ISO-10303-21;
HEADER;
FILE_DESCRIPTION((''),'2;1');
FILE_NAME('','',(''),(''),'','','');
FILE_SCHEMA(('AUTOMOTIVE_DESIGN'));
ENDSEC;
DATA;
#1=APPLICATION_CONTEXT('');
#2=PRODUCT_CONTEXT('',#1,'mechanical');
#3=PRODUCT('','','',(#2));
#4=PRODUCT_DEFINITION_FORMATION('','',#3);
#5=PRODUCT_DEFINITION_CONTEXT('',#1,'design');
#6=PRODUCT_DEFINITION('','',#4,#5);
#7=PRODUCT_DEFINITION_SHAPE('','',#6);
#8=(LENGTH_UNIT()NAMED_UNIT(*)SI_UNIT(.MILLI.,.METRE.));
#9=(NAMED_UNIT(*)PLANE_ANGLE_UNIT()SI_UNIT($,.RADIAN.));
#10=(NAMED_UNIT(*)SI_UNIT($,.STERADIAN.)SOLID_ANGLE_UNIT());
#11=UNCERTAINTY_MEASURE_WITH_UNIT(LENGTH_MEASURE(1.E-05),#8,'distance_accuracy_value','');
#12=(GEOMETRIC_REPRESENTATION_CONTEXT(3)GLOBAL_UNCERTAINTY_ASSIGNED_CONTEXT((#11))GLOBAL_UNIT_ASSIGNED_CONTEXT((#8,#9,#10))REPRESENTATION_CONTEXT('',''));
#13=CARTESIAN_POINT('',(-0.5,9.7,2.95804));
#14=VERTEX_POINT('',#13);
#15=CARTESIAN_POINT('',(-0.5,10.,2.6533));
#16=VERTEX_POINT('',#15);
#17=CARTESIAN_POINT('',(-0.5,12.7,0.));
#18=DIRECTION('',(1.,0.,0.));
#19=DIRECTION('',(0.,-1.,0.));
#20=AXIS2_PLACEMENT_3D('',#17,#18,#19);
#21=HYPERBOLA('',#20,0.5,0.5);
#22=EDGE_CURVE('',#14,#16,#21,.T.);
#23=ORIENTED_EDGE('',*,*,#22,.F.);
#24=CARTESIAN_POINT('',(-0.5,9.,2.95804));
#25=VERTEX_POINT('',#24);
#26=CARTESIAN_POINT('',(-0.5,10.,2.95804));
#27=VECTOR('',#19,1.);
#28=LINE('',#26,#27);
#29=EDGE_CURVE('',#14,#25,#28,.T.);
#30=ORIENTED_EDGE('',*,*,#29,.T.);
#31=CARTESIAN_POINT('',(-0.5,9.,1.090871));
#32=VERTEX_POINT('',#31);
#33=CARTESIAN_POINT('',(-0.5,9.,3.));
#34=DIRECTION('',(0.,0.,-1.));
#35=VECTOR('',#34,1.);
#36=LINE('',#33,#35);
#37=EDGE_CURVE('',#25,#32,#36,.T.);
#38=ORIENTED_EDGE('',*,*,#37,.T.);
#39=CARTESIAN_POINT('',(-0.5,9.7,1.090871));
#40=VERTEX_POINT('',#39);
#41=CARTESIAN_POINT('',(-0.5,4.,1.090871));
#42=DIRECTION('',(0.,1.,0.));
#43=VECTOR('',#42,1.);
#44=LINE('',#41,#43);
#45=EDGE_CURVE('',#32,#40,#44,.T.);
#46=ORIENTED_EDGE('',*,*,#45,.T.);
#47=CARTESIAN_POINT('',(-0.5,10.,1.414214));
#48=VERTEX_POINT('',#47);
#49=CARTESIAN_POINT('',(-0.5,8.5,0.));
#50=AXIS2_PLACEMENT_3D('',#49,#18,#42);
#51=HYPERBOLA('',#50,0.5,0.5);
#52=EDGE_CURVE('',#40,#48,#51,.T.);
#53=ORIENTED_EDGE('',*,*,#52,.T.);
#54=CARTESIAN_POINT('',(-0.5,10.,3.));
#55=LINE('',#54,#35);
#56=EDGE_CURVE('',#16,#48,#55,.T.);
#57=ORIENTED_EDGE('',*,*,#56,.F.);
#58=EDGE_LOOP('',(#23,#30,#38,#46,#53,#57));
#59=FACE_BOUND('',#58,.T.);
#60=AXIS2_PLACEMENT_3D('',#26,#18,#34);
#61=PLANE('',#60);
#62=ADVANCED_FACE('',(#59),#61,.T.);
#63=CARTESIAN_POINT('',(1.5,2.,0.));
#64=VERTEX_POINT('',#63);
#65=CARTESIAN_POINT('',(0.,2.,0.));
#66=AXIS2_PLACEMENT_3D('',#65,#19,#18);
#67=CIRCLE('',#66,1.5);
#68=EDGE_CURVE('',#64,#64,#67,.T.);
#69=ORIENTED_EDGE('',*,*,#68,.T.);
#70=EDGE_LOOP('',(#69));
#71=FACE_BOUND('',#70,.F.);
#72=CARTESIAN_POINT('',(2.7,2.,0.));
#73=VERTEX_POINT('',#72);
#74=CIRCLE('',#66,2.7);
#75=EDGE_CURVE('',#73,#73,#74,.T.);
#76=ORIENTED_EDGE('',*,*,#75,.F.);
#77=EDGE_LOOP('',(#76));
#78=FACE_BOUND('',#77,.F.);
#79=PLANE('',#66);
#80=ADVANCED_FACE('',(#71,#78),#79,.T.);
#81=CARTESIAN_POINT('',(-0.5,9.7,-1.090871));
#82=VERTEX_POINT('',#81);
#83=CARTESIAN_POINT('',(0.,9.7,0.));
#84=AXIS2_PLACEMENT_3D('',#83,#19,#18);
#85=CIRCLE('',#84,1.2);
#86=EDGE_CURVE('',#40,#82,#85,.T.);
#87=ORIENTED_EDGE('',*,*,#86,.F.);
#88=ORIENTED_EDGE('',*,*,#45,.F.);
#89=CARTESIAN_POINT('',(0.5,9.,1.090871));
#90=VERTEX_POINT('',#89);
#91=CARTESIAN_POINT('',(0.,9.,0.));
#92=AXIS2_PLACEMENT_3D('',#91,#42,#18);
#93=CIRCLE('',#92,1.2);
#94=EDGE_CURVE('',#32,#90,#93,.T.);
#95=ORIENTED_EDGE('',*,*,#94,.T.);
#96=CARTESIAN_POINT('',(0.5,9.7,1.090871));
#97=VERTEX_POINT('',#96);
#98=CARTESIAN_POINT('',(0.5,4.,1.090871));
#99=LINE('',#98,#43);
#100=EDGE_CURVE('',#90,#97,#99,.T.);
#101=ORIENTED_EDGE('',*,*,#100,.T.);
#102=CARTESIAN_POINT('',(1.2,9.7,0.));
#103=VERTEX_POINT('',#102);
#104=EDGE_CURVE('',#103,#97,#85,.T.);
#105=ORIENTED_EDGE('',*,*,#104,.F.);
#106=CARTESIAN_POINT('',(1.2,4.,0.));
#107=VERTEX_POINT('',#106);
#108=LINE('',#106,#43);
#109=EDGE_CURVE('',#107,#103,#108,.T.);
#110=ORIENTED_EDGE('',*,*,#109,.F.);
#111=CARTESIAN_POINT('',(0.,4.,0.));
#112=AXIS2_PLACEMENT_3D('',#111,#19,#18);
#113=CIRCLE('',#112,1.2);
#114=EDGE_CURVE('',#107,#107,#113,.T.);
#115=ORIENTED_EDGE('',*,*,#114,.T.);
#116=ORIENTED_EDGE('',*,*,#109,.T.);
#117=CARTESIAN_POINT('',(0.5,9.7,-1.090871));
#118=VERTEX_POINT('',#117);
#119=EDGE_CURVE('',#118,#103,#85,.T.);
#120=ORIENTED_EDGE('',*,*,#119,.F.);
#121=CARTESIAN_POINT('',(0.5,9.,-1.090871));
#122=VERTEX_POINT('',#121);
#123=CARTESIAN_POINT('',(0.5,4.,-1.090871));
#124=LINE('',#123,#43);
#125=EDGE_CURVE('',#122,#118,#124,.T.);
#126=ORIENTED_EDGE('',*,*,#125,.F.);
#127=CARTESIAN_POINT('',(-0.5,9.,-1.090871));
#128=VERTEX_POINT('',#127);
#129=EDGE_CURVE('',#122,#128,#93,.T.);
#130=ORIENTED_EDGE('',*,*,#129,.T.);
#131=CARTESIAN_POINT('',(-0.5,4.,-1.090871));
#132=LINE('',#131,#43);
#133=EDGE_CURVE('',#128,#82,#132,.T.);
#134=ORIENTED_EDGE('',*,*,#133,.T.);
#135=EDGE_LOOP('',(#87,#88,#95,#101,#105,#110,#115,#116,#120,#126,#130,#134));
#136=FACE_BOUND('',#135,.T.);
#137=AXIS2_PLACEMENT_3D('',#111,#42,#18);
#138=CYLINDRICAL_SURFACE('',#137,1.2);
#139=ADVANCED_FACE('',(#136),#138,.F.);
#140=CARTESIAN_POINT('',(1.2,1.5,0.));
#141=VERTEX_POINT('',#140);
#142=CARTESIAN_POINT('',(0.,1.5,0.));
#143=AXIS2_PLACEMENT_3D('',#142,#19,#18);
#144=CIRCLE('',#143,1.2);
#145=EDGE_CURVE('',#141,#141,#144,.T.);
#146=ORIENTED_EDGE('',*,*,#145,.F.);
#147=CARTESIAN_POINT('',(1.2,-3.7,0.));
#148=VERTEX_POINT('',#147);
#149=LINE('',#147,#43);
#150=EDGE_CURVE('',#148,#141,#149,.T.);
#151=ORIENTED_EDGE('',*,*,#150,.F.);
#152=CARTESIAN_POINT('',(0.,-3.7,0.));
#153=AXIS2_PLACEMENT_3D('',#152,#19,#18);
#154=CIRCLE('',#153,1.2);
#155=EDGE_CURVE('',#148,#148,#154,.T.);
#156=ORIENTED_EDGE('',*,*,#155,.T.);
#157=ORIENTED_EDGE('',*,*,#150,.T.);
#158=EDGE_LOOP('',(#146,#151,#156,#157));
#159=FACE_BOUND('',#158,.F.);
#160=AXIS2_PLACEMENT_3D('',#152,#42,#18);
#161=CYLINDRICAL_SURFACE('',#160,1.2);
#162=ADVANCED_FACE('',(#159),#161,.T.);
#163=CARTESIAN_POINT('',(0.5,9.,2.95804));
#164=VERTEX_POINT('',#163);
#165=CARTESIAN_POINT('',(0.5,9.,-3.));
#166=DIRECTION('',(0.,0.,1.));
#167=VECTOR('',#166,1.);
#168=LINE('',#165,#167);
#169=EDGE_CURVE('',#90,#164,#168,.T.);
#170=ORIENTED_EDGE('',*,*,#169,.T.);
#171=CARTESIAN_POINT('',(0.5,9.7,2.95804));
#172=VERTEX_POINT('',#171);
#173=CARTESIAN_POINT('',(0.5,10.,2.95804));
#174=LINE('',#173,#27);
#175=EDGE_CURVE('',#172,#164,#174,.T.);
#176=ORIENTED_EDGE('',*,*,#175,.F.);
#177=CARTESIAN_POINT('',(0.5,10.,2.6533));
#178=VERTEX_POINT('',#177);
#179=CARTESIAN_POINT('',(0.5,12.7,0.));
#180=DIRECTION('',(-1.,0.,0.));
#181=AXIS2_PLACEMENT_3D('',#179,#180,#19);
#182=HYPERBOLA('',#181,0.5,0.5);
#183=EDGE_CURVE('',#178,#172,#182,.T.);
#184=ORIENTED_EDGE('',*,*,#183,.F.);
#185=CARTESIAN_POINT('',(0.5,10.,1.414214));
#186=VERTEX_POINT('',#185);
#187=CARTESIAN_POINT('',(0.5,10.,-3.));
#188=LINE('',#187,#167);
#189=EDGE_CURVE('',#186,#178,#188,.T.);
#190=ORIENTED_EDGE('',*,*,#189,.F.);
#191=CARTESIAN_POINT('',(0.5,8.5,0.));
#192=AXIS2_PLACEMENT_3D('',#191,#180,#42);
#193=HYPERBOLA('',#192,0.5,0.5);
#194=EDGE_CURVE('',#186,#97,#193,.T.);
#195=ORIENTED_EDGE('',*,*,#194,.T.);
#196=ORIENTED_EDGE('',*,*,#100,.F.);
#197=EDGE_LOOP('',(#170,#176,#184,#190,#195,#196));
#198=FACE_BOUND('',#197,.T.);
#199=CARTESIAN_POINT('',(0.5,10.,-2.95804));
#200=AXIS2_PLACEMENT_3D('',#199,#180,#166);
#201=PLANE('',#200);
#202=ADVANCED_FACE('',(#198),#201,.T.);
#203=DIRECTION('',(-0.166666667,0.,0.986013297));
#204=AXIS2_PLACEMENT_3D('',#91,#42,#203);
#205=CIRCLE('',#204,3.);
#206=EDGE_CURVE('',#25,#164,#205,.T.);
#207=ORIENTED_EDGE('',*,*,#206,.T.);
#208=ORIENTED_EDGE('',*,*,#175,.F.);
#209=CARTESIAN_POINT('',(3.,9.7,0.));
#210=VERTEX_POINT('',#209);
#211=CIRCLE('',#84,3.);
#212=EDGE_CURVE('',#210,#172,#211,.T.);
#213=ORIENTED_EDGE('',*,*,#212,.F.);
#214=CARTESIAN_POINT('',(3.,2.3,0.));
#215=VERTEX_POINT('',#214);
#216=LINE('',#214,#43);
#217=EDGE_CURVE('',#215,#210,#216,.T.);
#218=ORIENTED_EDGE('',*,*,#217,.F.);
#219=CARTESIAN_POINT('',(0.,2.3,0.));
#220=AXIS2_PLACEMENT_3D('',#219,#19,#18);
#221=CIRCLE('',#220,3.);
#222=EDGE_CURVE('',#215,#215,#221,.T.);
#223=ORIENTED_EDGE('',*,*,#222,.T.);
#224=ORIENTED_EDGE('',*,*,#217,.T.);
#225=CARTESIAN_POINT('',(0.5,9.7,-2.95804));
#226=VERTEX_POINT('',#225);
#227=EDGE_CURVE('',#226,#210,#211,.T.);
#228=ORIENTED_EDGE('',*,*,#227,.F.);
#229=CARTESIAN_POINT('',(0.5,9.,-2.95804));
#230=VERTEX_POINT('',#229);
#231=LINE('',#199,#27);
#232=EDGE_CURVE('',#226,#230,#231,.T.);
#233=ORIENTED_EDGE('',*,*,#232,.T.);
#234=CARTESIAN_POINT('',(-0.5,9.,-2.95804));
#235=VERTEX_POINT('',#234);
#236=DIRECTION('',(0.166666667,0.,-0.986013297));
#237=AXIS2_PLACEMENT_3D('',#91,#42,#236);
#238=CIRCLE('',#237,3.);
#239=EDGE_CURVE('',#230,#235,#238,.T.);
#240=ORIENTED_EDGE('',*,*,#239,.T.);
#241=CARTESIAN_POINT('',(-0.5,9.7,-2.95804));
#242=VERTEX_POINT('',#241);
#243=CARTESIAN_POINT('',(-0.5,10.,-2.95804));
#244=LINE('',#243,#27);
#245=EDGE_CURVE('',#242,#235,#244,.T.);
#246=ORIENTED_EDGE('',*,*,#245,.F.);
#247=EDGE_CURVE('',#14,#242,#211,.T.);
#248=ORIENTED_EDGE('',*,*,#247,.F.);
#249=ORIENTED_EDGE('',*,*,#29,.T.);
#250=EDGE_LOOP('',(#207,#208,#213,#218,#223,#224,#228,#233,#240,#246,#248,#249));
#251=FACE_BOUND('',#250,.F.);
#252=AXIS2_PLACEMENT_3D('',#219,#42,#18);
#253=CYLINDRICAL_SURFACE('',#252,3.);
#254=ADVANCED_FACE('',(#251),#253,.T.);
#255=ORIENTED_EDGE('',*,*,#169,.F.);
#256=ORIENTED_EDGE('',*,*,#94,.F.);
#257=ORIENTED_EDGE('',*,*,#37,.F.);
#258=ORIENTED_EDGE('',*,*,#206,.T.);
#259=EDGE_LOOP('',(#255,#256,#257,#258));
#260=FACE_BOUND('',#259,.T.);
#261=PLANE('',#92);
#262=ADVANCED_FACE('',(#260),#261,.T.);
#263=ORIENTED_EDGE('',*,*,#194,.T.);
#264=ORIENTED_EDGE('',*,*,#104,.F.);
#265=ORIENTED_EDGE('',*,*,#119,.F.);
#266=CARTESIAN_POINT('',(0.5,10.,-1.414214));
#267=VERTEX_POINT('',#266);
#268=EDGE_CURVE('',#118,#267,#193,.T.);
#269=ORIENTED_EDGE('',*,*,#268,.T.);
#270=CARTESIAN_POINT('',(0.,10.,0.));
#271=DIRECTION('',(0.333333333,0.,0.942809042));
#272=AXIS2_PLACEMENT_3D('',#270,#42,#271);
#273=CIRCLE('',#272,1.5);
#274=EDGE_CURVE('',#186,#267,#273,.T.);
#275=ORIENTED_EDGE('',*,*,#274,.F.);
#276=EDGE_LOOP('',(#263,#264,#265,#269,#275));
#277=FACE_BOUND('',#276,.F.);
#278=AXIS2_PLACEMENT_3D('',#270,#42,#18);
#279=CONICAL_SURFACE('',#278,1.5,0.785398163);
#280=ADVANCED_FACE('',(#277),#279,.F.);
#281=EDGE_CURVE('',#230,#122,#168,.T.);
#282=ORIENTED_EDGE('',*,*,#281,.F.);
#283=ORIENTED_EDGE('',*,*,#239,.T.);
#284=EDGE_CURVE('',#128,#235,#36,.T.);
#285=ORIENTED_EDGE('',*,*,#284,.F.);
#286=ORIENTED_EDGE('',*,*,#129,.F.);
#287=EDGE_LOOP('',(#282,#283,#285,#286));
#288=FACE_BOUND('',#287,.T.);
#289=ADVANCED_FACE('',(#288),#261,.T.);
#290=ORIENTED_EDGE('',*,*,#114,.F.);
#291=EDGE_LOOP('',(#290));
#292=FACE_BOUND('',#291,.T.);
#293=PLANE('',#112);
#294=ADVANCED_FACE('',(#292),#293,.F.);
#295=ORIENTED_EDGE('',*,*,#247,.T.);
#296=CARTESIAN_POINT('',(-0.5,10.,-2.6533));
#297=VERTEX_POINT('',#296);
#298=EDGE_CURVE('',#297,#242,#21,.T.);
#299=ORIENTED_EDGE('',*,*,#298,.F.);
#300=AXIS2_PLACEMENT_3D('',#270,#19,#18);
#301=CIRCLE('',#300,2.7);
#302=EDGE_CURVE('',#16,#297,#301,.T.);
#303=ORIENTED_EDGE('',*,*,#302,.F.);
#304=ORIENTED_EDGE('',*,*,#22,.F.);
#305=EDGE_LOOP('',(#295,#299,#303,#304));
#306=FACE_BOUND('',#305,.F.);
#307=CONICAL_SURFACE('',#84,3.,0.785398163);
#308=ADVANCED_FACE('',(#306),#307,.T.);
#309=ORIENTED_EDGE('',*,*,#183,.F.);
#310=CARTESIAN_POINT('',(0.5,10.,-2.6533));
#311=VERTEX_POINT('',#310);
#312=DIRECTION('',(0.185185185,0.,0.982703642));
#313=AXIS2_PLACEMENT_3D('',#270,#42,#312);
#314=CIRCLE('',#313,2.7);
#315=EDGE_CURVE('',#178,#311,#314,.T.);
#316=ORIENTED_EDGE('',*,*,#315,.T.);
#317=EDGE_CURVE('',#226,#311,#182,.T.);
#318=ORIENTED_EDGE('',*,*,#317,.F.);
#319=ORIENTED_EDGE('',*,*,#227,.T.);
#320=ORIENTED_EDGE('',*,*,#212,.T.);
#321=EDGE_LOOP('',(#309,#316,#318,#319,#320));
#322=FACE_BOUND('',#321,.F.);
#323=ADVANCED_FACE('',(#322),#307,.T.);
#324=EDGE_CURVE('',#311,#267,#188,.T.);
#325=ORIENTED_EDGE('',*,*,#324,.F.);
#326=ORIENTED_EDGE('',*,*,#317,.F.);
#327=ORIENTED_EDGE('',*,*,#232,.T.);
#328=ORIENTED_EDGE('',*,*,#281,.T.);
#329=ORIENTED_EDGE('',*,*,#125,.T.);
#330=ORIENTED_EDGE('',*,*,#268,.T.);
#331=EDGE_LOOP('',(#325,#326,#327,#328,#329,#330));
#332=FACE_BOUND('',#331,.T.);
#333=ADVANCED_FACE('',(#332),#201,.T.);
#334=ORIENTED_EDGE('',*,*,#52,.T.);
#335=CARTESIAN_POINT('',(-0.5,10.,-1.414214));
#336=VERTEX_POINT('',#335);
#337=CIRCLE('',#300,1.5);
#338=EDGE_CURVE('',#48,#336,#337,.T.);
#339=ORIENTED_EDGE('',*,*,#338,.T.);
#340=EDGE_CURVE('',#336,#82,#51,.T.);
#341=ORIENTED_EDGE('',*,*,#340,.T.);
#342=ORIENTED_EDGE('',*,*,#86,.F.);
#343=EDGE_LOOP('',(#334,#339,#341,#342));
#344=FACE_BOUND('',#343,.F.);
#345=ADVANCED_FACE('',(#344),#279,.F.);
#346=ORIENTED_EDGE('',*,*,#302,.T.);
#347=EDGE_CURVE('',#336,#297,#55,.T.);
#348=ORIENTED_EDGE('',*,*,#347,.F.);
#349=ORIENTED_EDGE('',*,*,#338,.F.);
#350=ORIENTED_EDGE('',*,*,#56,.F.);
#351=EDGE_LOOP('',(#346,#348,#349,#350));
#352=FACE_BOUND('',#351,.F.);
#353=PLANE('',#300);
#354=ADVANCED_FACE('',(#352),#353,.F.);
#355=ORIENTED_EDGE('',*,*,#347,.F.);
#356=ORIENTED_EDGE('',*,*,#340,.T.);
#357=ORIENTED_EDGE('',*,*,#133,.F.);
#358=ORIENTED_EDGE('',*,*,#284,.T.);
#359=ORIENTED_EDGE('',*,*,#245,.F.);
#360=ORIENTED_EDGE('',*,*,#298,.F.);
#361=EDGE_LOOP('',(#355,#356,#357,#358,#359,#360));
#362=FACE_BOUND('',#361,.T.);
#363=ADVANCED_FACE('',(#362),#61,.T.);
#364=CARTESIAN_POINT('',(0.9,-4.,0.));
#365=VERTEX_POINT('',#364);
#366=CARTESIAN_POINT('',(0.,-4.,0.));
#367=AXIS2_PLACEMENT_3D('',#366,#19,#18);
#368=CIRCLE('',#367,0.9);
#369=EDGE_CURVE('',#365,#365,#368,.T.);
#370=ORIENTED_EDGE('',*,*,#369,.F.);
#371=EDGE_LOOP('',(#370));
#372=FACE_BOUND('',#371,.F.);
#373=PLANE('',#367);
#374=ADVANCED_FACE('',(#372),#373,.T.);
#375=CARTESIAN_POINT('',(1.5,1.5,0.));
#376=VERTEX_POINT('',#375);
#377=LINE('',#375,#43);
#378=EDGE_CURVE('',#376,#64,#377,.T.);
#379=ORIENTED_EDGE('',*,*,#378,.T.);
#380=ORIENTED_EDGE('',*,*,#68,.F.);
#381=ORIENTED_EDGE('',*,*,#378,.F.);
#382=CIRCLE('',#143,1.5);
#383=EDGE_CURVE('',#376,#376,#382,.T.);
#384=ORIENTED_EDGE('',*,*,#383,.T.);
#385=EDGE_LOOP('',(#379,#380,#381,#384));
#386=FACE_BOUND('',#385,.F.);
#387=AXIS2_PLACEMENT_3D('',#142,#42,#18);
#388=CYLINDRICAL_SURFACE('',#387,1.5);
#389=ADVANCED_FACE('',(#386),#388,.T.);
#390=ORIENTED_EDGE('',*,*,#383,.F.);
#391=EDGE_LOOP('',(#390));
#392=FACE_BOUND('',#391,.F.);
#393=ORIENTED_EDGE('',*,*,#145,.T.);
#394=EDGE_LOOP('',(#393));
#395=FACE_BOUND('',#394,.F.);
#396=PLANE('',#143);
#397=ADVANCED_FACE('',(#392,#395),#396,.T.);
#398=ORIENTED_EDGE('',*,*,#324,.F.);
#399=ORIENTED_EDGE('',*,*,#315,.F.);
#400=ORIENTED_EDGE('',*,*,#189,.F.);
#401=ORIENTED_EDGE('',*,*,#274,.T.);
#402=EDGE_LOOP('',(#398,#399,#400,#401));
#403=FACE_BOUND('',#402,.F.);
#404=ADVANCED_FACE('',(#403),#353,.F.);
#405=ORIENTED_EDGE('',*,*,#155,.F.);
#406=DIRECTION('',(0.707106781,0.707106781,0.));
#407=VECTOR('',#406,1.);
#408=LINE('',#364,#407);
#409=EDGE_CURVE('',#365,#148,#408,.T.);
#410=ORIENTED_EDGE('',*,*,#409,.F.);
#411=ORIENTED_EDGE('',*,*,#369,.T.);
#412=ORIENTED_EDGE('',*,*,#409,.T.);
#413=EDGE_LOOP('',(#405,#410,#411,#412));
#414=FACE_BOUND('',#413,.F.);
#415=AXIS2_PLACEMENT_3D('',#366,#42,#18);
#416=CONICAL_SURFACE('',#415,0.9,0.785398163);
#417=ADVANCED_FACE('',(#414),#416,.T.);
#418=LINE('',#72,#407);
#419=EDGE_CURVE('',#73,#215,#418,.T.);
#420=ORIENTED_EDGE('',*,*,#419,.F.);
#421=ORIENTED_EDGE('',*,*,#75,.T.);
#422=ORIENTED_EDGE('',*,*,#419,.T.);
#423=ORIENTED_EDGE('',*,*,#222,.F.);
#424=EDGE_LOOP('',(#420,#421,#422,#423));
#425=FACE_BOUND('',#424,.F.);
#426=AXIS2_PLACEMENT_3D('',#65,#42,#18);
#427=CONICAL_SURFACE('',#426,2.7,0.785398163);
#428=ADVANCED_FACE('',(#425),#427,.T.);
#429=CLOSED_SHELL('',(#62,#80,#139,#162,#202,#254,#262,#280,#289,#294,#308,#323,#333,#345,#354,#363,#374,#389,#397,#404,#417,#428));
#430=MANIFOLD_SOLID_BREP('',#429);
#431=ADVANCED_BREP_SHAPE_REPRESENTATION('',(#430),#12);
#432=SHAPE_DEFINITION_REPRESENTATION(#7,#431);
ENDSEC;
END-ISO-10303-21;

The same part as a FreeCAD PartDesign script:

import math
import FreeCAD as App
import Part
import Sketcher
from FreeCAD import Vector
Q = App.Units.Quantity

doc = App.newDocument("Part")
params = doc.addObject("Spreadsheet::Sheet", "Params")
for row, (alias, value) in enumerate([
    ("sketch1_height", "8 mm"),
    ("sketch1_width", "0.3 mm"),
    ("sketch1_height2", "0.5 mm"),
    ("revolution_angle", "360 deg"),
    ("sketch2_radius", "3 mm"),
    ("pocket1_length", "1 mm"),
], start=1):
    params.set(f"A{row}", alias)
    params.set(f"B{row}", "=" + value)
    params.setAlias(f"B{row}", alias)

body = doc.addObject("PartDesign::Body", "Body")

sketch1 = body.newObject("Sketcher::SketchObject", "Sketch")
sketch1.AttachmentSupport = (doc.getObject("XY_Plane"), [""])
sketch1.MapMode = "FlatFace"
sketch1.addGeometry([
    Part.LineSegment(Vector(0, 4, 0), Vector(0, -4, 0)),
    Part.LineSegment(Vector(0, -4, 0), Vector(0.9, -4, 0)),
    Part.LineSegment(Vector(0.9, -4, 0), Vector(1.2, -3.7, 0)),
    Part.LineSegment(Vector(1.2, -3.7, 0), Vector(1.2, 1.5, 0)),
    Part.LineSegment(Vector(1.2, 1.5, 0), Vector(1.5, 1.5, 0)),
    Part.LineSegment(Vector(1.5, 1.5, 0), Vector(1.5, 2, 0)),
    Part.LineSegment(Vector(1.5, 2, 0), Vector(2.7, 2, 0)),
    Part.LineSegment(Vector(2.7, 2, 0), Vector(3, 2.3, 0)),
    Part.LineSegment(Vector(3, 2.3, 0), Vector(3, 9.7, 0)),
    Part.LineSegment(Vector(3, 9.7, 0), Vector(2.7, 10, 0)),
    Part.LineSegment(Vector(2.7, 10, 0), Vector(1.5, 10, 0)),
    Part.LineSegment(Vector(1.5, 10, 0), Vector(1.2, 9.7, 0)),
    Part.LineSegment(Vector(1.2, 9.7, 0), Vector(1.2, 4, 0)),
    Part.LineSegment(Vector(1.2, 4, 0), Vector(0, 4, 0)),
], False)
sketch1.addConstraint([
    Sketcher.Constraint("Coincident", 0, 2, 1, 1),
    Sketcher.Constraint("Coincident", 1, 2, 2, 1),
    Sketcher.Constraint("Coincident", 2, 2, 3, 1),
    Sketcher.Constraint("Coincident", 3, 2, 4, 1),
    Sketcher.Constraint("Coincident", 4, 2, 5, 1),
    Sketcher.Constraint("Coincident", 5, 2, 6, 1),
    Sketcher.Constraint("Coincident", 6, 2, 7, 1),
    Sketcher.Constraint("Coincident", 7, 2, 8, 1),
    Sketcher.Constraint("Coincident", 8, 2, 9, 1),
    Sketcher.Constraint("Coincident", 9, 2, 10, 1),
    Sketcher.Constraint("Coincident", 10, 2, 11, 1),
    Sketcher.Constraint("Coincident", 11, 2, 12, 1),
    Sketcher.Constraint("Coincident", 12, 2, 13, 1),
    Sketcher.Constraint("Coincident", 13, 2, 0, 1),
    Sketcher.Constraint("Vertical", 0),
    Sketcher.Constraint("Horizontal", 1),
    Sketcher.Constraint("Vertical", 3),
    Sketcher.Constraint("Horizontal", 4),
    Sketcher.Constraint("Vertical", 5),
    Sketcher.Constraint("Horizontal", 6),
    Sketcher.Constraint("Vertical", 8),
    Sketcher.Constraint("Horizontal", 10),
    Sketcher.Constraint("Vertical", 12),
    Sketcher.Constraint("Horizontal", 13),
    Sketcher.Constraint("Symmetric", 0, 2, 13, 2, -1, 1),
    Sketcher.Constraint("Parallel", 2, 7),
    Sketcher.Constraint("Perpendicular", 7, 9),
    Sketcher.Constraint("Perpendicular", 9, 11),
    Sketcher.Constraint("Horizontal", 8, 2, 11, 2),
    Sketcher.Constraint("Vertical", 6, 2, 9, 2),
    Sketcher.Constraint("Vertical", 5, 2, 10, 2),
    Sketcher.Constraint("Vertical", 3, 2, 11, 2),
    Sketcher.Constraint("Equal", 10, 13),
    Sketcher.Constraint("Equal", 2, 7),
    Sketcher.Constraint("Equal", 7, 9),
    Sketcher.Constraint("DistanceY", 0, 2, 0, 1, Q("8 mm")),
    Sketcher.Constraint("DistanceX", 4, 1, 4, 2, Q("0.3 mm")),
    Sketcher.Constraint("DistanceY", 5, 1, 5, 2, Q("0.5 mm")),
    Sketcher.Constraint("DistanceX", -1, 1, 7, 2, Q("3 mm")),
    Sketcher.Constraint("DistanceY", 1, 2, 5, 2, Q("6 mm")),
    Sketcher.Constraint("DistanceY", 6, 2, 9, 2, Q("8 mm")),
])
sketch1.setExpression("Constraints[35]", "Params.sketch1_height")
sketch1.setExpression("Constraints[36]", "Params.sketch1_width")
sketch1.setExpression("Constraints[37]", "Params.sketch1_height2")
revolution = body.newObject("PartDesign::Revolution", "Revolution")
revolution.Profile = sketch1
revolution.ReferenceAxis = (sketch1, ["V_Axis"])
revolution.setExpression("Angle", "Params.revolution_angle")

sketch2 = body.newObject("Sketcher::SketchObject", "Sketch001")
sketch2.AttachmentSupport = (doc.getObject("XZ_Plane"), [""])
sketch2.MapMode = "FlatFace"
sketch2.AttachmentOffset = App.Placement(Vector(0, 0, -10), App.Rotation())
sketch2.addGeometry([
    Part.ArcOfCircle(Part.Circle(Vector(0, 0, 0), Vector(0, 0, 1), 3), math.radians(-99.59), math.radians(-80.41)),
    Part.LineSegment(Vector(-0.5, -3, 0), Vector(-0.5, 3, 0)),
    Part.ArcOfCircle(Part.Circle(Vector(0, 0, 0), Vector(0, 0, 1), 3), math.radians(80.41), math.radians(99.59)),
    Part.LineSegment(Vector(0.5, 3, 0), Vector(0.5, -3, 0)),
], False)
sketch2.addConstraint([
    Sketcher.Constraint("Coincident", 0, 1, 1, 1),
    Sketcher.Constraint("Coincident", 1, 2, 2, 2),
    Sketcher.Constraint("Coincident", 2, 1, 3, 1),
    Sketcher.Constraint("Coincident", 3, 2, 0, 2),
    Sketcher.Constraint("Vertical", 1),
    Sketcher.Constraint("Vertical", 3),
    Sketcher.Constraint("Coincident", 0, 3, -1, 1),
    Sketcher.Constraint("Coincident", 2, 3, -1, 1),
    Sketcher.Constraint("Equal", 0, 2),
    Sketcher.Constraint("Horizontal", 1, 2, 2, 1),
    Sketcher.Constraint("Radius", 0, Q("3 mm")),
    Sketcher.Constraint("DistanceX", 1, 2, 2, 1, Q("1 mm")),
])
sketch2.setExpression("Constraints[10]", "Params.sketch2_radius")
pocket1 = body.newObject("PartDesign::Pocket", "Pocket")
pocket1.Profile = sketch2
pocket1.setExpression("Length", "Params.pocket1_length")
pocket1.Reversed = True

doc.recompute()
